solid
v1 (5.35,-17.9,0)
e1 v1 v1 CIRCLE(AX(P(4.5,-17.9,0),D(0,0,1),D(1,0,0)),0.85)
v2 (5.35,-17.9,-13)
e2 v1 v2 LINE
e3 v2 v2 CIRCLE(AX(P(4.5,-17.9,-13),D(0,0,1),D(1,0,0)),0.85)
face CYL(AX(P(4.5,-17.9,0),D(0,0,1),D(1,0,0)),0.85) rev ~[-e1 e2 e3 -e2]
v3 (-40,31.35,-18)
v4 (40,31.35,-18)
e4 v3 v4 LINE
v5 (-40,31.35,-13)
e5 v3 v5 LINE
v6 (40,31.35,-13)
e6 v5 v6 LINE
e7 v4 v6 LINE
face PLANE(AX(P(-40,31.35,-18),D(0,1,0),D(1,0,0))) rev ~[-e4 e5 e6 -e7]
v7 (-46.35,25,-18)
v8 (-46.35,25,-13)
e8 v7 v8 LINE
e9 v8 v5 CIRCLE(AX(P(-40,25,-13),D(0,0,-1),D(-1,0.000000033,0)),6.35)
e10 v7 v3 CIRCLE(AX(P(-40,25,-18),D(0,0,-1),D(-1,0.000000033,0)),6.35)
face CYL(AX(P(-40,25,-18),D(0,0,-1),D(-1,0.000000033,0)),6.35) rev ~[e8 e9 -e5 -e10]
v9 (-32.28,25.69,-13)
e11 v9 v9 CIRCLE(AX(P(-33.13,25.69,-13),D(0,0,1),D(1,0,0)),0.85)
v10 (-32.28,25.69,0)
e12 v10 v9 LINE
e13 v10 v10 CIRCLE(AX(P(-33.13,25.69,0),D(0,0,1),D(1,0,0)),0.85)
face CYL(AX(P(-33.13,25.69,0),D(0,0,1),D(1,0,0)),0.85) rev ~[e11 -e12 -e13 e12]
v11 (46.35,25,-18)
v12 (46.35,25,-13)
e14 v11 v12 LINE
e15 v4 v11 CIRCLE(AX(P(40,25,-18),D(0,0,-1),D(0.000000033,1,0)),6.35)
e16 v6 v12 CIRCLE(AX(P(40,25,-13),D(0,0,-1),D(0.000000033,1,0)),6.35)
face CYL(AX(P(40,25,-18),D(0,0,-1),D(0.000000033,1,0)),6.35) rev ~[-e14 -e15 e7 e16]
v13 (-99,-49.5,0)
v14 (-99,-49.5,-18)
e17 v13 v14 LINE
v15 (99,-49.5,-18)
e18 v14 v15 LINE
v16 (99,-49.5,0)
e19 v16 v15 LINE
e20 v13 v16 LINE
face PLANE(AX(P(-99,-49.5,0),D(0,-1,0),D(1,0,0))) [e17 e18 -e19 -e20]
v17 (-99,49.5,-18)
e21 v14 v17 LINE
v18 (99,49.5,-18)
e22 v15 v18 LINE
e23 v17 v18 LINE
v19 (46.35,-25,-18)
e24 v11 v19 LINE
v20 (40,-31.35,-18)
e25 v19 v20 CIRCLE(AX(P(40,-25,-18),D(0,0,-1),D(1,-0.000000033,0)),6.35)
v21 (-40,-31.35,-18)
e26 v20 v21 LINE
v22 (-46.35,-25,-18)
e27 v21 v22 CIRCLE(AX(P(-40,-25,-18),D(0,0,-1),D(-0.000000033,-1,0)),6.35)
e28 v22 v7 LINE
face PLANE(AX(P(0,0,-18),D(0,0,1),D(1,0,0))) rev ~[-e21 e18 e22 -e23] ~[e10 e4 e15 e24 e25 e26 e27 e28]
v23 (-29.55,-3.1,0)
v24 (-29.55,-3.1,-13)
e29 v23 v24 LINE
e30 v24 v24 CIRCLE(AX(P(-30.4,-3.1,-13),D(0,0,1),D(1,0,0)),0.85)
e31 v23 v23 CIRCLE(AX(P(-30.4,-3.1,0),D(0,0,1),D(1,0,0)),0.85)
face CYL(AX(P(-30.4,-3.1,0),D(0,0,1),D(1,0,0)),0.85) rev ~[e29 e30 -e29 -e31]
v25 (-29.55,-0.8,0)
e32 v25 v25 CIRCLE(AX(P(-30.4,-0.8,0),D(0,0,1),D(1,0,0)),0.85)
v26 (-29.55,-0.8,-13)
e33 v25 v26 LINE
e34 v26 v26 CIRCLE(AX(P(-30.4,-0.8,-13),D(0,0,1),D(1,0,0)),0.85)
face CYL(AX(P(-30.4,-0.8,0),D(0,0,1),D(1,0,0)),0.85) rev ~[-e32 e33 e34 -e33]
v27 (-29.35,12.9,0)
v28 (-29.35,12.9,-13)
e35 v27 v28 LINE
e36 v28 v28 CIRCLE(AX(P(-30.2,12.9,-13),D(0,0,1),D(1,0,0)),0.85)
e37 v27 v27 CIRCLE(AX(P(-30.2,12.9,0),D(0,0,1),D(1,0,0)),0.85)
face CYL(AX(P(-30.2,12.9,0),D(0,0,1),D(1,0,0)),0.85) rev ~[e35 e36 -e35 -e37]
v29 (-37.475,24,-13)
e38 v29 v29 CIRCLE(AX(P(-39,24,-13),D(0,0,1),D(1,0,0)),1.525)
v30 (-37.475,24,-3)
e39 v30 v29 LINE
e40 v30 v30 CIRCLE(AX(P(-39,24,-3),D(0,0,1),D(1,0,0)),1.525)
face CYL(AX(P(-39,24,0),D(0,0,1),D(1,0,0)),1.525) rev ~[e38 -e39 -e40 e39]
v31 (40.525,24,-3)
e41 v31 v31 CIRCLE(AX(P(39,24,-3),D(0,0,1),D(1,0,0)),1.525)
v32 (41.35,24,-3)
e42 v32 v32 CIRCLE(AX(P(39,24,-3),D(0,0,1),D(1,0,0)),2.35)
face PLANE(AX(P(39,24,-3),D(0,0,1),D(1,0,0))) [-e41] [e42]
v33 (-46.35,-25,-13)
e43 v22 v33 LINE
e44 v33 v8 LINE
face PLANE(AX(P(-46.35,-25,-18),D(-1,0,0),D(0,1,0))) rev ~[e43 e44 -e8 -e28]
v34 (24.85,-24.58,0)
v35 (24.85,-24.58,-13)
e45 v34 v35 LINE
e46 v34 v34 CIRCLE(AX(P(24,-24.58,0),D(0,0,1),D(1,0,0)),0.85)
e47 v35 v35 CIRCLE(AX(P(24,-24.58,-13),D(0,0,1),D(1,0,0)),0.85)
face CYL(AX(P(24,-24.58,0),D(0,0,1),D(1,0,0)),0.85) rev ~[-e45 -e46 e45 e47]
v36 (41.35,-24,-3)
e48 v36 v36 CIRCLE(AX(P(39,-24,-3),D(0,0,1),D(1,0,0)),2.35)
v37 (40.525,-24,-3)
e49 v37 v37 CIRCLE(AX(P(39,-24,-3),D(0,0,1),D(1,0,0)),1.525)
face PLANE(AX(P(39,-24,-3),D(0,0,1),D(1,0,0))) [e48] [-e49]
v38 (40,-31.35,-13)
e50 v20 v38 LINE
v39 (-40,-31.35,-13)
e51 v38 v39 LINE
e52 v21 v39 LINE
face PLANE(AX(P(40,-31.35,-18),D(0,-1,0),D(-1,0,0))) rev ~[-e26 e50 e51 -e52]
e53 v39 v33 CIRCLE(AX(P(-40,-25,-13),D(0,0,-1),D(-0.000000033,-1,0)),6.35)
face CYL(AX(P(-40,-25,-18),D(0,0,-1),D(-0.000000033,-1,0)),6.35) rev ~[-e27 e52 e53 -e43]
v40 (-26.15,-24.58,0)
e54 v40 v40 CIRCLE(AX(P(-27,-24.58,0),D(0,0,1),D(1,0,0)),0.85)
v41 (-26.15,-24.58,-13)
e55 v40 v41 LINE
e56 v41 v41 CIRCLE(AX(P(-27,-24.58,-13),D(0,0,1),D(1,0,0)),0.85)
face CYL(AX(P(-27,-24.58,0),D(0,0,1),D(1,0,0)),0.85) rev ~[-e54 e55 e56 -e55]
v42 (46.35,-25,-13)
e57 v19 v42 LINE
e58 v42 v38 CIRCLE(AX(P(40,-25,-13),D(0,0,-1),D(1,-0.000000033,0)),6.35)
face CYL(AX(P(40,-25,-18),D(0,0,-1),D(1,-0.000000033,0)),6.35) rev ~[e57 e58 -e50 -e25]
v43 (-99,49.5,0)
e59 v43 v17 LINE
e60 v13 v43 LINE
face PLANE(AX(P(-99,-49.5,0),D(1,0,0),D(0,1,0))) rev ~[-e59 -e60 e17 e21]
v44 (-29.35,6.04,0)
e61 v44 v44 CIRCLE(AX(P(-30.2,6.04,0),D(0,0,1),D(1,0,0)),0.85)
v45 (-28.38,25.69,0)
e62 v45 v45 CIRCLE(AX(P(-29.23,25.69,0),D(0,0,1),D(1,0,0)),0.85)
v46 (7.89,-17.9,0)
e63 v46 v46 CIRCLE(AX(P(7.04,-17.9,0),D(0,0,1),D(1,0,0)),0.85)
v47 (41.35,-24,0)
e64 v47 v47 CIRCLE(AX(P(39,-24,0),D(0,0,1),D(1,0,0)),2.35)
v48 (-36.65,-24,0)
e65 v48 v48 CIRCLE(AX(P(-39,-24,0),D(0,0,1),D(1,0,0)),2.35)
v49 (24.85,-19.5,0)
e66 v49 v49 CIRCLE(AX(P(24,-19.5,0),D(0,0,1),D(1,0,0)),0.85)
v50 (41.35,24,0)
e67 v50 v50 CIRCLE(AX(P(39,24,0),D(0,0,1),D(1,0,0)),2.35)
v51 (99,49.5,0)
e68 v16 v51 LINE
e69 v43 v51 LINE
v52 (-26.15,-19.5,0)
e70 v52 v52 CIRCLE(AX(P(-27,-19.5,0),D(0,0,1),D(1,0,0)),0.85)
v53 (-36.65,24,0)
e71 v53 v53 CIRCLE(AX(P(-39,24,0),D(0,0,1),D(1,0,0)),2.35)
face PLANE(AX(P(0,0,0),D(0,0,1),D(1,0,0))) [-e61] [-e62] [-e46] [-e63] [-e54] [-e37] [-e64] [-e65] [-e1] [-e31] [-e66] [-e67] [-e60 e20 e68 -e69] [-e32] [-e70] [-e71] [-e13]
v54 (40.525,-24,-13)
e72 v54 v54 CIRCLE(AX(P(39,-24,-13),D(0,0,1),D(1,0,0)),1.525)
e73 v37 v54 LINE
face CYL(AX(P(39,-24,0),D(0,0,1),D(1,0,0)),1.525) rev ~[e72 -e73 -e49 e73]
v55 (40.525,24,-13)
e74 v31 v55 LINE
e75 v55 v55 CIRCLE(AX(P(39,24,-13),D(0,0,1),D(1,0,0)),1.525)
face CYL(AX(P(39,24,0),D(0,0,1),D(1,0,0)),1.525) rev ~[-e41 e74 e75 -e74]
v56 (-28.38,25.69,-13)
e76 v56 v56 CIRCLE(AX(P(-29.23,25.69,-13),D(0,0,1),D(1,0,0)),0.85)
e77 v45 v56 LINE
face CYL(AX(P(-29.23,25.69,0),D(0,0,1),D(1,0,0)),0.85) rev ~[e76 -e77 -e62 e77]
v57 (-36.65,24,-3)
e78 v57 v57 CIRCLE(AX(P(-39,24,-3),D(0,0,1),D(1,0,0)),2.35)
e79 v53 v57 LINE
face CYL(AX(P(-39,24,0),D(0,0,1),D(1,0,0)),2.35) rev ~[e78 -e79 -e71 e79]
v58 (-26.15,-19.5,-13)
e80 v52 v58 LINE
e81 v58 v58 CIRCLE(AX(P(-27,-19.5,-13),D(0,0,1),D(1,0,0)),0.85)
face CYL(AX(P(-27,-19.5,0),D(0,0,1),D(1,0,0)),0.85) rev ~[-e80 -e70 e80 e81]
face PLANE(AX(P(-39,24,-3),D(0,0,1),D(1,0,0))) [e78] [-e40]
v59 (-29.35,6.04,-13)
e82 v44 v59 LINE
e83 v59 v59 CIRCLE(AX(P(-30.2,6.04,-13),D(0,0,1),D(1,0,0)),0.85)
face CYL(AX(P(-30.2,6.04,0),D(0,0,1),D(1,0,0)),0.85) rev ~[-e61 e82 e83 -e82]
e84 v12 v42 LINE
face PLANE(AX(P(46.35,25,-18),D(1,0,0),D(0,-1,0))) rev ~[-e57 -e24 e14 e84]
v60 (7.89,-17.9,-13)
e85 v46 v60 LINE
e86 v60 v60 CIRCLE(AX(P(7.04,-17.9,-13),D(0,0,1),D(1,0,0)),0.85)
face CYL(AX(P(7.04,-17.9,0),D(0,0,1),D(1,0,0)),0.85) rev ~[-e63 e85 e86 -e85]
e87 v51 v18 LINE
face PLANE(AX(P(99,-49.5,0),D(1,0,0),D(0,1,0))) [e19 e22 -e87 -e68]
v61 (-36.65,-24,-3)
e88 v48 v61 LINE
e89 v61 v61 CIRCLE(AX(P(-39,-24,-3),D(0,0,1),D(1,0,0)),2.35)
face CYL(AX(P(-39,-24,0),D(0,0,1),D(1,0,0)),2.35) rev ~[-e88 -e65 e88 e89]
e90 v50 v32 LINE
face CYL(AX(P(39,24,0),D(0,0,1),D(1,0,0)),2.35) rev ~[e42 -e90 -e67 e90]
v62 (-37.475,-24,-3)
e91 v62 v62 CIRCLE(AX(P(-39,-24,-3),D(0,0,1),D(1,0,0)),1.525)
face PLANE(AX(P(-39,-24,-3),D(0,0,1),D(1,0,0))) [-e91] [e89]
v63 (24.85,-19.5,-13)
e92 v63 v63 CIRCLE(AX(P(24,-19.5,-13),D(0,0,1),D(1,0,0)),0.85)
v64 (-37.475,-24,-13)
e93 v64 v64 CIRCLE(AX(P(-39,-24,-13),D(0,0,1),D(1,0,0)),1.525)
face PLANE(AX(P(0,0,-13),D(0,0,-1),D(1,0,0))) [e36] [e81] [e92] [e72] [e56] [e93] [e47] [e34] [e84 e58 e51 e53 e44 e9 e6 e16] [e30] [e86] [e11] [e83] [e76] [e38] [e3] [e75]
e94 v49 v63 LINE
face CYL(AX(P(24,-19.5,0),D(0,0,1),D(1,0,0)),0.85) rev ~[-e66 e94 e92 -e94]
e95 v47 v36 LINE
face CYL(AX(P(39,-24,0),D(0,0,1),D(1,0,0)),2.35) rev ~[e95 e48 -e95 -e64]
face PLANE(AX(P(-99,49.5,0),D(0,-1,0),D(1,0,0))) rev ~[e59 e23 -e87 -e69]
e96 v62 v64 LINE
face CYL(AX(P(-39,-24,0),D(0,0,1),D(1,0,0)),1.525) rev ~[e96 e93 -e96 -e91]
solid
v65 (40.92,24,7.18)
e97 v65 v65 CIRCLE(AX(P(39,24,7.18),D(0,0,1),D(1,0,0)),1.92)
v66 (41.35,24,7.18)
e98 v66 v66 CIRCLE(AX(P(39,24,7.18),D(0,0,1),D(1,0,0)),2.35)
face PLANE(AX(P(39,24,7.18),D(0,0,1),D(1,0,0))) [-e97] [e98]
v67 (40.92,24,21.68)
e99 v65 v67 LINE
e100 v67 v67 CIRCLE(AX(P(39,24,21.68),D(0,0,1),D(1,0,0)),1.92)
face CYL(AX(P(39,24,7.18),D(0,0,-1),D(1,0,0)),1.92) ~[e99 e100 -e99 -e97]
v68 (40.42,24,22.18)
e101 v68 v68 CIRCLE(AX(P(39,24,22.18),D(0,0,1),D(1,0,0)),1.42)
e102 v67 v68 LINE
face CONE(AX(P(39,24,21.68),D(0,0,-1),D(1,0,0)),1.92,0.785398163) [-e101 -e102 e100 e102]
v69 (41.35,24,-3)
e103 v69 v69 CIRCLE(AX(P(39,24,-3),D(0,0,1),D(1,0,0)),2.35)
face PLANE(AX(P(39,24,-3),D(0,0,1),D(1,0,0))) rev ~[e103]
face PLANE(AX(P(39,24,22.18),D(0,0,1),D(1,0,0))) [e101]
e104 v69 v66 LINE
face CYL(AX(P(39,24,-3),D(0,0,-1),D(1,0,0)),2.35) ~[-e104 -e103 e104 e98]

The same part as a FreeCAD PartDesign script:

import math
import FreeCAD as App
import Part
import Sketcher
from FreeCAD import Vector
Q = App.Units.Quantity


def edges_at(feature, points):
    """Names of the edges that pass closest to the given points."""
    edges = feature.Shape.Edges
    near = lambda p: min(range(len(edges)), key=lambda i: edges[i].distToShape(Part.Vertex(*p))[0])
    return sorted({f"Edge{near(p) + 1}" for p in points})


def add_polygon(sketch, points):
    """Adds a closed chain of lines whose ends are joined by coincident constraints."""
    first, n = sketch.GeometryCount, len(points)
    for a, b in zip(points, points[1:] + points[:1]):
        sketch.addGeometry(Part.LineSegment(App.Vector(*a, 0), App.Vector(*b, 0)), False)
    for i in range(n):
        sketch.addConstraint(Sketcher.Constraint("Coincident", first + i, 2, first + (i + 1) % n, 1))

doc = App.newDocument("Part")
body = doc.addObject("PartDesign::Body", "Body")

sketch1 = body.newObject("Sketcher::SketchObject", "Sketch")
sketch1.AttachmentSupport = (doc.getObject("XY_Plane"), [""])
sketch1.MapMode = "FlatFace"
add_polygon(sketch1, [(-99, 50), (-99, -50), (99, -50), (99, 50)])
sketch1.addConstraint([
    Sketcher.Constraint("Vertical", 0),
    Sketcher.Constraint("Horizontal", 1),
    Sketcher.Constraint("Vertical", 2),
    Sketcher.Constraint("Horizontal", 3),
    Sketcher.Constraint("Symmetric", 0, 2, 2, 2, -1, 1),
    Sketcher.Constraint("DistanceX", 1, 1, 1, 2, Q("198 mm")),
    Sketcher.Constraint("DistanceY", 0, 2, 0, 1, Q("99 mm")),
])
pad1 = body.newObject("PartDesign::Pad", "Pad")
pad1.Profile = sketch1
pad1.Length = 18
pad1.Reversed = True

sketch2 = body.newObject("Sketcher::SketchObject", "Sketch001")
sketch2.AttachmentSupport = (doc.getObject("XY_Plane"), [""])
sketch2.MapMode = "FlatFace"
sketch2.AttachmentOffset = App.Placement(Vector(0, 0, -18), App.Rotation())
sketch2.addGeometry([
    Part.ArcOfCircle(Part.Circle(Vector(40, -25, 0), Vector(0, 0, 1), 6), math.radians(-90), math.radians(0)),
    Part.LineSegment(Vector(40, -31, 0), Vector(-40, -31, 0)),
    Part.ArcOfCircle(Part.Circle(Vector(-40, -25, 0), Vector(0, 0, 1), 6), math.radians(-180), math.radians(-90)),
    Part.LineSegment(Vector(-46, -25, 0), Vector(-46, 25, 0)),
    Part.ArcOfCircle(Part.Circle(Vector(-40, 25, 0), Vector(0, 0, 1), 6), math.radians(90), math.radians(180)),
    Part.LineSegment(Vector(-40, 31, 0), Vector(40, 31, 0)),
    Part.ArcOfCircle(Part.Circle(Vector(40, 25, 0), Vector(0, 0, 1), 6), math.radians(0), math.radians(90)),
    Part.LineSegment(Vector(46, 25, 0), Vector(46, -25, 0)),
], False)
sketch2.addConstraint([
    Sketcher.Constraint("Tangent", 0, 1, 1, 1),
    Sketcher.Constraint("Tangent", 1, 2, 2, 2),
    Sketcher.Constraint("Tangent", 2, 1, 3, 1),
    Sketcher.Constraint("Tangent", 3, 2, 4, 2),
    Sketcher.Constraint("Tangent", 4, 1, 5, 1),
    Sketcher.Constraint("Tangent", 5, 2, 6, 2),
    Sketcher.Constraint("Tangent", 6, 1, 7, 1),
    Sketcher.Constraint("Tangent", 7, 2, 0, 2),
    Sketcher.Constraint("Horizontal", 1),
    Sketcher.Constraint("Vertical", 3),
    Sketcher.Constraint("Horizontal", 5),
    Sketcher.Constraint("Vertical", 7),
    Sketcher.Constraint("Equal", 0, 2),
    Sketcher.Constraint("Equal", 2, 4),
    Sketcher.Constraint("Equal", 4, 6),
    Sketcher.Constraint("Symmetric", 0, 3, 4, 3, -1, 1),
    Sketcher.Constraint("DistanceX", 1, 2, 1, 1, Q("80 mm")),
    Sketcher.Constraint("DistanceY", 3, 1, 3, 2, Q("50 mm")),
    Sketcher.Constraint("Radius", 0, Q("6.35 mm")),
])
pocket1 = body.newObject("PartDesign::Pocket", "Pocket")
pocket1.Profile = sketch2
pocket1.Length = 5
pocket1.Reversed = True

sketch3 = body.newObject("Sketcher::SketchObject", "Sketch002")
sketch3.AttachmentSupport = (doc.getObject("XY_Plane"), [""])
sketch3.MapMode = "FlatFace"
sketch3.addGeometry([
    Part.Circle(Vector(-39, -24, 0), Vector(0, 0, 1), 2.4),
    Part.Circle(Vector(39, -24, 0), Vector(0, 0, 1), 2.4),
    Part.Circle(Vector(39, 24, 0), Vector(0, 0, 1), 2.4),
    Part.Circle(Vector(-39, 24, 0), Vector(0, 0, 1), 2.4),
], False)
sketch3.addConstraint([
    Sketcher.Constraint("Equal", 0, 1),
    Sketcher.Constraint("Equal", 1, 2),
    Sketcher.Constraint("Equal", 2, 3),
    Sketcher.Constraint("Symmetric", 0, 3, 2, 3, -1, 1),
    Sketcher.Constraint("Symmetric", 1, 3, 3, 3, -1, 1),
    Sketcher.Constraint("Symmetric", 0, 3, 1, 3, -2),
    Sketcher.Constraint("Diameter", 0, Q("4.7 mm")),
    Sketcher.Constraint("DistanceX", 0, 3, -1, 1, Q("39 mm")),
    Sketcher.Constraint("DistanceY", 0, 3, -1, 1, Q("24 mm")),
])
pocket2 = body.newObject("PartDesign::Pocket", "Pocket001")
pocket2.Profile = sketch3
pocket2.Length = 3

sketch4 = body.newObject("Sketcher::SketchObject", "Sketch003")
sketch4.AttachmentSupport = (doc.getObject("XY_Plane"), [""])
sketch4.MapMode = "FlatFace"
sketch4.addGeometry([
    Part.Circle(Vector(4.5, -17.9, 0), Vector(0, 0, 1), 0.8),
    Part.Circle(Vector(7, -17.9, 0), Vector(0, 0, 1), 0.8),
    Part.Circle(Vector(24, -19.5, 0), Vector(0, 0, 1), 0.8),
    Part.Circle(Vector(24, -24.6, 0), Vector(0, 0, 1), 0.8),
    Part.Circle(Vector(-27, -19.5, 0), Vector(0, 0, 1), 0.8),
    Part.Circle(Vector(-27, -24.6, 0), Vector(0, 0, 1), 0.8),
    Part.Circle(Vector(-33.1, 25.7, 0), Vector(0, 0, 1), 0.8),
    Part.Circle(Vector(-30.2, 12.9, 0), Vector(0, 0, 1), 0.8),
    Part.Circle(Vector(-30.2, 6, 0), Vector(0, 0, 1), 0.8),
    Part.Circle(Vector(-30.4, -0.8, 0), Vector(0, 0, 1), 0.8),
    Part.Circle(Vector(-30.4, -3.1, 0), Vector(0, 0, 1), 0.8),
    Part.Circle(Vector(-29.2, 25.7, 0), Vector(0, 0, 1), 0.8),
], False)
sketch4.addConstraint([
    Sketcher.Constraint("Equal", 0, 1),
    Sketcher.Constraint("Equal", 1, 2),
    Sketcher.Constraint("Equal", 2, 3),
    Sketcher.Constraint("Equal", 3, 4),
    Sketcher.Constraint("Equal", 4, 5),
    Sketcher.Constraint("Equal", 5, 6),
    Sketcher.Constraint("Equal", 6, 7),
    Sketcher.Constraint("Equal", 7, 8),
    Sketcher.Constraint("Equal", 8, 9),
    Sketcher.Constraint("Equal", 9, 10),
    Sketcher.Constraint("Equal", 10, 11),
    Sketcher.Constraint("Horizontal", 0, 3, 1, 3),
    Sketcher.Constraint("Horizontal", 2, 3, 4, 3),
    Sketcher.Constraint("Horizontal", 3, 3, 5, 3),
    Sketcher.Constraint("Horizontal", 6, 3, 11, 3),
    Sketcher.Constraint("Vertical", 2, 3, 3, 3),
    Sketcher.Constraint("Vertical", 4, 3, 5, 3),
    Sketcher.Constraint("Vertical", 7, 3, 8, 3),
    Sketcher.Constraint("Vertical", 9, 3, 10, 3),
    Sketcher.Constraint("Diameter", 0, Q("1.7 mm")),
    Sketcher.Constraint("DistanceX", -1, 1, 2, 3, Q("24 mm")),
    Sketcher.Constraint("DistanceX", 4, 3, -1, 1, Q("27 mm")),
    Sketcher.Constraint("DistanceY", 10, 3, 7, 3, Q("16 mm")),
    Sketcher.Constraint("DistanceX", -1, 1, 0, 3, Q("4.5 mm")),
    Sketcher.Constraint("DistanceY", 0, 3, -1, 1, Q("17.9 mm")),
    Sketcher.Constraint("DistanceY", 2, 3, -1, 1, Q("19.5 mm")),
    Sketcher.Constraint("DistanceX", 7, 3, -1, 1, Q("30.2 mm")),
    Sketcher.Constraint("DistanceY", -1, 1, 7, 3, Q("12.9 mm")),
    Sketcher.Constraint("DistanceX", 9, 3, -1, 1, Q("30.4 mm")),
    Sketcher.Constraint("DistanceY", 9, 3, -1, 1, Q("0.8 mm")),
    Sketcher.Constraint("DistanceX", 6, 3, 11, 3, Q("3.9 mm")),
    Sketcher.Constraint("DistanceX", -1, 1, 1, 3, Q("7.04 mm")),
    Sketcher.Constraint("DistanceY", 3, 3, -1, 1, Q("24.58 mm")),
    Sketcher.Constraint("DistanceX", 6, 3, -1, 1, Q("33.13 mm")),
    Sketcher.Constraint("DistanceY", -1, 1, 6, 3, Q("25.69 mm")),
    Sketcher.Constraint("DistanceY", -1, 1, 8, 3, Q("6.04 mm")),
])
pocket3 = body.newObject("PartDesign::Pocket", "Pocket002")
pocket3.Profile = sketch4
pocket3.Type = "ThroughAll"

sketch5 = body.newObject("Sketcher::SketchObject", "Sketch004")
sketch5.AttachmentSupport = (doc.getObject("XY_Plane"), [""])
sketch5.MapMode = "FlatFace"
sketch5.addGeometry([
    Part.Circle(Vector(-39, 24, 0), Vector(0, 0, 1), 1.5),
    Part.Circle(Vector(-39, -24, 0), Vector(0, 0, 1), 1.5),
    Part.Circle(Vector(39, -24, 0), Vector(0, 0, 1), 1.5),
    Part.Circle(Vector(39, 24, 0), Vector(0, 0, 1), 1.5),
], False)
sketch5.addConstraint([
    Sketcher.Constraint("Equal", 0, 1),
    Sketcher.Constraint("Equal", 1, 2),
    Sketcher.Constraint("Equal", 2, 3),
    Sketcher.Constraint("Symmetric", 0, 3, 2, 3, -1, 1),
    Sketcher.Constraint("Symmetric", 1, 3, 3, 3, -1, 1),
    Sketcher.Constraint("Symmetric", 1, 3, 2, 3, -2),
    Sketcher.Constraint("Diameter", 0, Q("3.05 mm")),
    Sketcher.Constraint("DistanceX", 0, 3, -1, 1, Q("39 mm")),
    Sketcher.Constraint("DistanceY", -1, 1, 0, 3, Q("24 mm")),
])
pocket4 = body.newObject("PartDesign::Pocket", "Pocket003")
pocket4.Profile = sketch5
pocket4.Type = "ThroughAll"
body2 = doc.addObject("PartDesign::Body", "Body001")

sketch6 = body2.newObject("Sketcher::SketchObject", "Sketch005")
sketch6.AttachmentSupport = (doc.getObject("XY_Plane001"), [""])
sketch6.MapMode = "FlatFace"
sketch6.AttachmentOffset = App.Placement(Vector(0, 0, -3), App.Rotation())
sketch6.addGeometry(Part.Circle(Vector(39, 24, 0), Vector(0, 0, 1), 2.4), False)
sketch6.addConstraint([
    Sketcher.Constraint("Diameter", 0, Q("4.7 mm")),
    Sketcher.Constraint("DistanceX", -1, 1, 0, 3, Q("39 mm")),
    Sketcher.Constraint("DistanceY", -1, 1, 0, 3, Q("24 mm")),
])
pad2 = body2.newObject("PartDesign::Pad", "Pad001")
pad2.Profile = sketch6
pad2.Length = 10.18

sketch7 = body2.newObject("Sketcher::SketchObject", "Sketch006")
sketch7.AttachmentSupport = (doc.getObject("XY_Plane001"), [""])
sketch7.MapMode = "FlatFace"
sketch7.AttachmentOffset = App.Placement(Vector(0, 0, 7.18), App.Rotation())
sketch7.addGeometry(Part.Circle(Vector(39, 24, 0), Vector(0, 0, 1), 1.9), False)
sketch7.addConstraint([
    Sketcher.Constraint("Diameter", 0, Q("3.84 mm")),
    Sketcher.Constraint("DistanceX", -1, 1, 0, 3, Q("39 mm")),
    Sketcher.Constraint("DistanceY", -1, 1, 0, 3, Q("24 mm")),
])
pad3 = body2.newObject("PartDesign::Pad", "Pad002")
pad3.Profile = sketch7
pad3.Length = 15
doc.recompute()

chamfer = body2.newObject("PartDesign::Chamfer", "Chamfer")
chamfer.Base = (pad3, edges_at(pad3, [(37.08, 24, 22.18)]))
chamfer.Size = 0.5

doc.recompute()
